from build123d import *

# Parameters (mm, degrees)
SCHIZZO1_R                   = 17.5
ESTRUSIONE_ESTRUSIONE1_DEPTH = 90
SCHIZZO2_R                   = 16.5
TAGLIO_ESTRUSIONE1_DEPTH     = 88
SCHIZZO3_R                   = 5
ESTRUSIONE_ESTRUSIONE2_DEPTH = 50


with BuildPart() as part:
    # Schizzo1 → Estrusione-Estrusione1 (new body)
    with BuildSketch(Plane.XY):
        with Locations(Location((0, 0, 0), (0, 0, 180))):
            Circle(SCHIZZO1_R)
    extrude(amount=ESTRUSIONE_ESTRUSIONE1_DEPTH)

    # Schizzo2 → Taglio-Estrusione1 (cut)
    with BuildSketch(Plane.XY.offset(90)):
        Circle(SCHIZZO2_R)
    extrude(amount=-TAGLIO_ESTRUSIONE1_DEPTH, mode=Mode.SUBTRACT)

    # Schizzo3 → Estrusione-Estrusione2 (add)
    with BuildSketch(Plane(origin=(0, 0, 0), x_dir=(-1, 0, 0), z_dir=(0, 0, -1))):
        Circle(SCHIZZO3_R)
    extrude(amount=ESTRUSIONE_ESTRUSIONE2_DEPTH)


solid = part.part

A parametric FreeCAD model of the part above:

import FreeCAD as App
import Part
import Sketcher

V = App.Vector

doc = App.newDocument("Part")
params = doc.addObject("Spreadsheet::Sheet", "Params")
for row, (alias, value) in enumerate([
    ("sketch1_diameter", "35 mm"),
    ("pad1_length", "90 mm"),
    ("sketch2_diameter", "33 mm"),
    ("pocket1_length", "88 mm"),
    ("sketch3_diameter", "10 mm"),
    ("pad2_length", "50 mm"),
], start=1):
    params.set(f"A{row}", alias)
    params.set(f"B{row}", "=" + value)
    params.setAlias(f"B{row}", alias)

body = doc.addObject("PartDesign::Body", "Body")

# Sketch on XY plane
sketch1 = body.newObject("Sketcher::SketchObject", "Sketch")
sketch1.AttachmentSupport = (doc.getObject("XY_Plane"), [""])
sketch1.MapMode = "FlatFace"
sketch1.addGeometry(Part.Circle(V(0, 0, 0), V(0, 0, 1), 17.5), False)
sketch1.addConstraint(Sketcher.Constraint("Coincident", 0, 3, -1, 1))
sketch1.addConstraint(Sketcher.Constraint("Diameter", 0, 35.0))
sketch1.setExpression("Constraints[1]", "Params.sketch1_diameter")
pad1 = body.newObject("PartDesign::Pad", "Pad")
pad1.Profile = sketch1
pad1.setExpression("Length", "Params.pad1_length")

# Sketch on XY plane
sketch2 = body.newObject("Sketcher::SketchObject", "Sketch001")
sketch2.AttachmentSupport = (doc.getObject("XY_Plane"), [""])
sketch2.MapMode = "FlatFace"
sketch2.AttachmentOffset = App.Placement(V(0, 0, 90), App.Rotation())
sketch2.addGeometry(Part.Circle(V(0, 0, 0), V(0, 0, 1), 16.5), False)
sketch2.addConstraint(Sketcher.Constraint("Coincident", 0, 3, -1, 1))
sketch2.addConstraint(Sketcher.Constraint("Diameter", 0, 33.0))
sketch2.setExpression("Constraints[1]", "Params.sketch2_diameter")
pocket1 = body.newObject("PartDesign::Pocket", "Pocket")
pocket1.Profile = sketch2
pocket1.setExpression("Length", "Params.pocket1_length")

# Sketch on XY plane
sketch3 = body.newObject("Sketcher::SketchObject", "Sketch002")
sketch3.AttachmentSupport = (doc.getObject("XY_Plane"), [""])
sketch3.MapMode = "FlatFace"
sketch3.addGeometry(Part.Circle(V(0, 0, 0), V(0, 0, 1), 5), False)
sketch3.addConstraint(Sketcher.Constraint("Coincident", 0, 3, -1, 1))
sketch3.addConstraint(Sketcher.Constraint("Diameter", 0, 10.0))
sketch3.setExpression("Constraints[1]", "Params.sketch3_diameter")
pad2 = body.newObject("PartDesign::Pad", "Pad001")
pad2.Profile = sketch3
pad2.setExpression("Length", "Params.pad2_length")
pad2.Reversed = True

doc.recompute()
